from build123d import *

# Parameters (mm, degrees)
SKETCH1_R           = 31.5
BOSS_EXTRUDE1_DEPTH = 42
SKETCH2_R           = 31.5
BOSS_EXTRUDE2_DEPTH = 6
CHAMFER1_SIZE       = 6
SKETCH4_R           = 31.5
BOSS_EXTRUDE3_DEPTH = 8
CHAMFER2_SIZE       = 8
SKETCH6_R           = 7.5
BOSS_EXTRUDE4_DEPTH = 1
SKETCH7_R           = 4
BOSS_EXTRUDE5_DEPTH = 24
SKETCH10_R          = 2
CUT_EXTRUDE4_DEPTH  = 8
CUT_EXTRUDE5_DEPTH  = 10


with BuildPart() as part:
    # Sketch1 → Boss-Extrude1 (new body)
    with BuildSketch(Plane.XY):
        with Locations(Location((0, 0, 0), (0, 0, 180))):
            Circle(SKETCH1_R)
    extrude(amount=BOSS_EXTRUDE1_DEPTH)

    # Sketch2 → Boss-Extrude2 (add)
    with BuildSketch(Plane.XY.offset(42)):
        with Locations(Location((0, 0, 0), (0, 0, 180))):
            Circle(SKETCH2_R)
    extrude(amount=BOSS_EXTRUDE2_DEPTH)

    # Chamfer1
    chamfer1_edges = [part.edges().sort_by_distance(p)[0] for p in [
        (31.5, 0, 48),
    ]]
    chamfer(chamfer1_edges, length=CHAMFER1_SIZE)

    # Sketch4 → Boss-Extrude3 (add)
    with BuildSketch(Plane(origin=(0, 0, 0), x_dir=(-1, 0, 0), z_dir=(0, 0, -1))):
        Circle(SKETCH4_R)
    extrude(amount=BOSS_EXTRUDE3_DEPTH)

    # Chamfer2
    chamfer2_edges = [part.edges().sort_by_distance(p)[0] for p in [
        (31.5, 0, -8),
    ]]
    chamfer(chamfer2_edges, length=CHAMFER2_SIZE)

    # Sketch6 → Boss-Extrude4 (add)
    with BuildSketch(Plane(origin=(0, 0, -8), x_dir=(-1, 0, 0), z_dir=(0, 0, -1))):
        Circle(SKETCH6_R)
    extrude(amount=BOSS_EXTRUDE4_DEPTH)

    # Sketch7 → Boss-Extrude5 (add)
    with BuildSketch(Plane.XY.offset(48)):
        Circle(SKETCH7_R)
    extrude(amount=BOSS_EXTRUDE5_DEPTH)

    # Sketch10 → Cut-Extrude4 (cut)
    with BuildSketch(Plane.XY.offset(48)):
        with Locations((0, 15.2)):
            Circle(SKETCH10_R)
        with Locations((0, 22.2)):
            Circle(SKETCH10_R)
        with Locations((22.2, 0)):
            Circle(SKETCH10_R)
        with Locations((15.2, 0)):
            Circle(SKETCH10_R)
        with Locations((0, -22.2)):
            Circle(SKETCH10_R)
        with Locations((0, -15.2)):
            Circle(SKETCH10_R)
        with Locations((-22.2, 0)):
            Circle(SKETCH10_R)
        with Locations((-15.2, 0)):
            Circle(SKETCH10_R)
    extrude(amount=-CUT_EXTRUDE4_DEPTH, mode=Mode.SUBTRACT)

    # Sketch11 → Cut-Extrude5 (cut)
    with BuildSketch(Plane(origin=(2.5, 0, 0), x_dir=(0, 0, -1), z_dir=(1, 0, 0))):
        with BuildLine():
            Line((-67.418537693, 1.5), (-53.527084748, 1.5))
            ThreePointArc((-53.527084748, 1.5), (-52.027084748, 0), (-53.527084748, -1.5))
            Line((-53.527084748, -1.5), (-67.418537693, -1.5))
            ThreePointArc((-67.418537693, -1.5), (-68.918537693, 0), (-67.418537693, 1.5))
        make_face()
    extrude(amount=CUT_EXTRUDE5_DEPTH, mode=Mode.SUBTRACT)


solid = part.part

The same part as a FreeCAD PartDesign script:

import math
import FreeCAD as App
import Part
import Sketcher
from FreeCAD import Vector


def edges_at(feature, points):
    """Names of the edges that pass closest to the given points."""
    edges = feature.Shape.Edges
    near = lambda p: min(range(len(edges)), key=lambda i: edges[i].distToShape(Part.Vertex(*p))[0])
    return sorted({f"Edge{near(p) + 1}" for p in points})

doc = App.newDocument("Part")
body = doc.addObject("PartDesign::Body", "Body")

sketch1 = body.newObject("Sketcher::SketchObject", "Sketch")
sketch1.AttachmentSupport = (doc.getObject("XY_Plane"), [""])
sketch1.MapMode = "FlatFace"
sketch1.addGeometry(Part.Circle(Vector(0, 0, 0), Vector(0, 0, 1), 32), False)
sketch1.addConstraint([
    Sketcher.Constraint("Coincident", 0, 3, -1, 1),
    Sketcher.Constraint("Diameter", 0, 63.0),
])
pad1 = body.newObject("PartDesign::Pad", "Pad")
pad1.Profile = sketch1
pad1.Length = 42

sketch2 = body.newObject("Sketcher::SketchObject", "Sketch001")
sketch2.AttachmentSupport = (doc.getObject("XY_Plane"), [""])
sketch2.MapMode = "FlatFace"
sketch2.AttachmentOffset = App.Placement(Vector(0, 0, 42), App.Rotation())
sketch2.addGeometry(Part.Circle(Vector(0, 0, 0), Vector(0, 0, 1), 32), False)
sketch2.addConstraint([
    Sketcher.Constraint("Coincident", 0, 3, -1, 1),
    Sketcher.Constraint("Diameter", 0, 63.0),
])
pad2 = body.newObject("PartDesign::Pad", "Pad001")
pad2.Profile = sketch2
pad2.Length = 6
doc.recompute()

chamfer = body.newObject("PartDesign::Chamfer", "Chamfer")
chamfer.Base = (pad2, edges_at(pad2, [(31.5, 0, 48)]))
chamfer.Size = 6

sketch3 = body.newObject("Sketcher::SketchObject", "Sketch002")
sketch3.AttachmentSupport = (doc.getObject("XY_Plane"), [""])
sketch3.MapMode = "FlatFace"
sketch3.addGeometry(Part.Circle(Vector(0, 0, 0), Vector(0, 0, 1), 32), False)
sketch3.addConstraint([
    Sketcher.Constraint("Coincident", 0, 3, -1, 1),
    Sketcher.Constraint("Diameter", 0, 63.0),
])
pad3 = body.newObject("PartDesign::Pad", "Pad002")
pad3.Profile = sketch3
pad3.Length = 8
pad3.Reversed = True
doc.recompute()

chamfer2 = body.newObject("PartDesign::Chamfer", "Chamfer001")
chamfer2.Base = (pad3, edges_at(pad3, [(31.5, 0, -8)]))
chamfer2.Size = 8

sketch4 = body.newObject("Sketcher::SketchObject", "Sketch003")
sketch4.AttachmentSupport = (doc.getObject("XY_Plane"), [""])
sketch4.MapMode = "FlatFace"
sketch4.AttachmentOffset = App.Placement(Vector(0, 0, -8), App.Rotation())
sketch4.addGeometry(Part.Circle(Vector(0, 0, 0), Vector(0, 0, 1), 8), False)
sketch4.addConstraint([
    Sketcher.Constraint("Coincident", 0, 3, -1, 1),
    Sketcher.Constraint("Diameter", 0, 15.0),
])
pad4 = body.newObject("PartDesign::Pad", "Pad003")
pad4.Profile = sketch4
pad4.Length = 1
pad4.Reversed = True

sketch5 = body.newObject("Sketcher::SketchObject", "Sketch004")
sketch5.AttachmentSupport = (doc.getObject("XY_Plane"), [""])
sketch5.MapMode = "FlatFace"
sketch5.AttachmentOffset = App.Placement(Vector(0, 0, 48), App.Rotation())
sketch5.addGeometry(Part.Circle(Vector(0, 0, 0), Vector(0, 0, 1), 4), False)
sketch5.addConstraint([
    Sketcher.Constraint("Coincident", 0, 3, -1, 1),
    Sketcher.Constraint("Diameter", 0, 8.0),
])
pad5 = body.newObject("PartDesign::Pad", "Pad004")
pad5.Profile = sketch5
pad5.Length = 24

sketch6 = body.newObject("Sketcher::SketchObject", "Sketch005")
sketch6.AttachmentSupport = (doc.getObject("XY_Plane"), [""])
sketch6.MapMode = "FlatFace"
sketch6.AttachmentOffset = App.Placement(Vector(0, 0, 48), App.Rotation())
sketch6.addGeometry([
    Part.Circle(Vector(0, 15.2, 0), Vector(0, 0, 1), 2),
    Part.Circle(Vector(0, 22.2, 0), Vector(0, 0, 1), 2),
    Part.Circle(Vector(22.2, 0, 0), Vector(0, 0, 1), 2),
    Part.Circle(Vector(15.2, 0, 0), Vector(0, 0, 1), 2),
    Part.Circle(Vector(0, -22.2, 0), Vector(0, 0, 1), 2),
    Part.Circle(Vector(0, -15.2, 0), Vector(0, 0, 1), 2),
    Part.Circle(Vector(-22.2, 0, 0), Vector(0, 0, 1), 2),
    Part.Circle(Vector(-15.2, 0, 0), Vector(0, 0, 1), 2),
], False)
sketch6.addConstraint([
    Sketcher.Constraint("Equal", 0, 1),
    Sketcher.Constraint("Equal", 1, 2),
    Sketcher.Constraint("Equal", 2, 3),
    Sketcher.Constraint("Equal", 3, 4),
    Sketcher.Constraint("Equal", 4, 5),
    Sketcher.Constraint("Equal", 5, 6),
    Sketcher.Constraint("Equal", 6, 7),
    Sketcher.Constraint("Symmetric", 1, 3, 4, 3, -1, 1),
    Sketcher.Constraint("Symmetric", 0, 3, 5, 3, -1, 1),
    Sketcher.Constraint("Symmetric", 2, 3, 6, 3, -1, 1),
    Sketcher.Constraint("Symmetric", 3, 3, 7, 3, -1, 1),
    Sketcher.Constraint("PointOnObject", 0, 3, -2),
    Sketcher.Constraint("PointOnObject", 1, 3, -2),
    Sketcher.Constraint("PointOnObject", 2, 3, -1),
    Sketcher.Constraint("PointOnObject", 3, 3, -1),
    Sketcher.Constraint("Diameter", 0, 4.0),
    Sketcher.Constraint("DistanceY", 0, 3, 1, 3, 7.0),
    Sketcher.Constraint("DistanceX", 3, 3, 2, 3, 7.0),
    Sketcher.Constraint("DistanceY", -1, 1, 0, 3, 15.2),
    Sketcher.Constraint("DistanceX", -1, 1, 2, 3, 22.2),
])
pocket1 = body.newObject("PartDesign::Pocket", "Pocket")
pocket1.Profile = sketch6
pocket1.Length = 8

sketch7 = body.newObject("Sketcher::SketchObject", "Sketch006")
sketch7.AttachmentSupport = (doc.getObject("YZ_Plane"), [""])
sketch7.MapMode = "FlatFace"
sketch7.AttachmentOffset = App.Placement(Vector(0, 0, 2.5), App.Rotation())
sketch7.addGeometry([
    Part.LineSegment(Vector(1.5, 53.5, 0), Vector(1.5, 67.4, 0)),
    Part.ArcOfCircle(Part.Circle(Vector(0, 67.4, 0), Vector(0, 0, 1), 1.5), math.radians(0), math.radians(180)),
    Part.LineSegment(Vector(-1.5, 67.4, 0), Vector(-1.5, 53.5, 0)),
    Part.ArcOfCircle(Part.Circle(Vector(0, 53.5, 0), Vector(0, 0, 1), 1.5), math.radians(180), math.radians(360)),
], False)
sketch7.addConstraint([
    Sketcher.Constraint("Tangent", 0, 2, 1, 1),
    Sketcher.Constraint("Tangent", 1, 2, 2, 1),
    Sketcher.Constraint("Tangent", 2, 2, 3, 1),
    Sketcher.Constraint("Tangent", 3, 2, 0, 1),
    Sketcher.Constraint("Vertical", 0),
    Sketcher.Constraint("Vertical", 2),
    Sketcher.Constraint("PointOnObject", 1, 3, -2),
    Sketcher.Constraint("Radius", 1, 1.5),
    Sketcher.Constraint("DistanceY", 0, 1, 0, 2, 13.891453),
    Sketcher.Constraint("DistanceY", -1, 1, 1, 3, 67.418538),
])
pocket2 = body.newObject("PartDesign::Pocket", "Pocket001")
pocket2.Profile = sketch7
pocket2.Length = 10
pocket2.Reversed = True

doc.recompute()
